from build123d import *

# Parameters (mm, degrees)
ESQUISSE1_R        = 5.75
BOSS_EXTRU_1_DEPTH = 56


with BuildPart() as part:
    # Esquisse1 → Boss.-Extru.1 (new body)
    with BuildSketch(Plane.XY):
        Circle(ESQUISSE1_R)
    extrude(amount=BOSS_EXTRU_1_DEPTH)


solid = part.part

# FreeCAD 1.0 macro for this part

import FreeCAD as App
import Part
import Sketcher

V = App.Vector
Q = App.Units.Quantity

doc = App.newDocument("Part")
params = doc.addObject("Spreadsheet::Sheet", "Params")
for row, (alias, value) in enumerate([
    ("sketch1_diameter", "11.5 mm"),
    ("pad1_length", "56 mm"),
], start=1):
    params.set(f"A{row}", alias)
    params.set(f"B{row}", "=" + value)
    params.setAlias(f"B{row}", alias)

body = doc.addObject("PartDesign::Body", "Body")

sketch1 = body.newObject("Sketcher::SketchObject", "Sketch")
sketch1.AttachmentSupport = (doc.getObject("XY_Plane"), [""])
sketch1.MapMode = "FlatFace"
sketch1.addGeometry(Part.Circle(V(0, 0, 0), V(0, 0, 1), 5.75), False)
sketch1.addConstraint(Sketcher.Constraint("Coincident", 0, 3, -1, 1))
sketch1.addConstraint(Sketcher.Constraint("Diameter", 0, Q("11.5 mm")))
sketch1.setExpression("Constraints[1]", "Params.sketch1_diameter")
pad1 = body.newObject("PartDesign::Pad", "Pad")
pad1.Profile = sketch1
pad1.setExpression("Length", "Params.pad1_length")

doc.recompute()
